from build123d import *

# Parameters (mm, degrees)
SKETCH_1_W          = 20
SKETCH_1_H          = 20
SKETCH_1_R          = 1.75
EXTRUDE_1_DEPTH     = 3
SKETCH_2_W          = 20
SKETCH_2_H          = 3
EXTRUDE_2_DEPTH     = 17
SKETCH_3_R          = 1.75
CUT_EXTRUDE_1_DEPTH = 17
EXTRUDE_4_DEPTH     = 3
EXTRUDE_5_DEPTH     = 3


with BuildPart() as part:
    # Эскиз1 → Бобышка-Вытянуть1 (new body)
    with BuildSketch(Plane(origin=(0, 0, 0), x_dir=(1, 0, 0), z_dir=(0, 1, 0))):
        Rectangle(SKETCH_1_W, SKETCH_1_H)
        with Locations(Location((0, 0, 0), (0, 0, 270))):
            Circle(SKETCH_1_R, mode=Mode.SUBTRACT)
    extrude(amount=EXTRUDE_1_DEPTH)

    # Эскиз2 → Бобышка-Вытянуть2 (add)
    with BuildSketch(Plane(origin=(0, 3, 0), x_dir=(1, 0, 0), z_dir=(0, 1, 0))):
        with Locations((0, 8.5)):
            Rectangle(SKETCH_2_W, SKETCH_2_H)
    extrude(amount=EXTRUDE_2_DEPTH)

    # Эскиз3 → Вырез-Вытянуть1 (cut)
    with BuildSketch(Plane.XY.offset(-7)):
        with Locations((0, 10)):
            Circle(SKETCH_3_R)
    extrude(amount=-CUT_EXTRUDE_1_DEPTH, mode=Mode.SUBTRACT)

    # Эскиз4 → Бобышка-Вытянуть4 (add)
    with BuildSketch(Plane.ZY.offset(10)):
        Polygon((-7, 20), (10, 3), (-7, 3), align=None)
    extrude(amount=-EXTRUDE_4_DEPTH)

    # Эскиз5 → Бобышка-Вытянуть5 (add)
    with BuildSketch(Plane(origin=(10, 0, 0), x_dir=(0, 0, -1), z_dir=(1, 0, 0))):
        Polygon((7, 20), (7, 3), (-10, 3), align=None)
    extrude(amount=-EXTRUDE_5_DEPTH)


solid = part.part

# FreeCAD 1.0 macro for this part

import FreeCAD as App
import Part
import Sketcher
from FreeCAD import Vector
Q = App.Units.Quantity


def add_polygon(sketch, points):
    """Adds a closed chain of lines whose ends are joined by coincident constraints."""
    first, n = sketch.GeometryCount, len(points)
    for a, b in zip(points, points[1:] + points[:1]):
        sketch.addGeometry(Part.LineSegment(App.Vector(*a, 0), App.Vector(*b, 0)), False)
    for i in range(n):
        sketch.addConstraint(Sketcher.Constraint("Coincident", first + i, 2, first + (i + 1) % n, 1))

doc = App.newDocument("Part")
body = doc.addObject("PartDesign::Body", "Body")

# Sketch on XZ plane
sketch1 = body.newObject("Sketcher::SketchObject", "Sketch")
sketch1.AttachmentSupport = (doc.getObject("XZ_Plane"), [""])
sketch1.MapMode = "FlatFace"
add_polygon(sketch1, [(-10, -10), (-10, 10), (10, 10), (10, -10)])  # lines 0-3
sketch1.addGeometry(Part.Circle(Vector(0, 0, 0), Vector(0, 0, 1), 1.8), False)  # 4
sketch1.addConstraint(Sketcher.Constraint("Vertical", 0))
sketch1.addConstraint(Sketcher.Constraint("Horizontal", 1))
sketch1.addConstraint(Sketcher.Constraint("Vertical", 2))
sketch1.addConstraint(Sketcher.Constraint("Horizontal", 3))
sketch1.addConstraint(Sketcher.Constraint("Coincident", 4, 3, -1, 1))
sketch1.addConstraint(Sketcher.Constraint("Symmetric", 0, 2, 2, 2, -1, 1))
sketch1.addConstraint(Sketcher.Constraint("Equal", 3, 0))
sketch1.addConstraint(Sketcher.Constraint("Diameter", 4, Q("3.5 mm")))
sketch1.addConstraint(Sketcher.Constraint("DistanceX", 1, 1, 1, 2, Q("20 mm")))
pad1 = body.newObject("PartDesign::Pad", "Pad")
pad1.Profile = sketch1
pad1.Length = 3
pad1.Reversed = True

# Sketch on XZ plane
sketch2 = body.newObject("Sketcher::SketchObject", "Sketch001")
sketch2.AttachmentSupport = (doc.getObject("XZ_Plane"), [""])
sketch2.MapMode = "FlatFace"
sketch2.AttachmentOffset = App.Placement(Vector(0, 0, -3), App.Rotation())
add_polygon(sketch2, [(-10, -10), (-10, -7), (10, -7), (10, -10)])  # lines 0-3
sketch2.addConstraint(Sketcher.Constraint("Vertical", 0))
sketch2.addConstraint(Sketcher.Constraint("Horizontal", 1))
sketch2.addConstraint(Sketcher.Constraint("Vertical", 2))
sketch2.addConstraint(Sketcher.Constraint("Horizontal", 3))
sketch2.addConstraint(Sketcher.Constraint("DistanceX", 1, 1, 1, 2, Q("20 mm")))
sketch2.addConstraint(Sketcher.Constraint("DistanceY", 0, 1, 0, 2, Q("3 mm")))
sketch2.addConstraint(Sketcher.Constraint("DistanceX", 0, 2, -1, 1, Q("10 mm")))
sketch2.addConstraint(Sketcher.Constraint("DistanceY", 0, 2, -1, 1, Q("7 mm")))
pad2 = body.newObject("PartDesign::Pad", "Pad001")
pad2.Profile = sketch2
pad2.Length = 17
pad2.Reversed = True

# Sketch on XY plane
sketch3 = body.newObject("Sketcher::SketchObject", "Sketch002")
sketch3.AttachmentSupport = (doc.getObject("XY_Plane"), [""])
sketch3.MapMode = "FlatFace"
sketch3.AttachmentOffset = App.Placement(Vector(0, 0, -7), App.Rotation())
sketch3.addGeometry(Part.Circle(Vector(0, 10, 0), Vector(0, 0, 1), 1.8), False)
sketch3.addConstraint(Sketcher.Constraint("PointOnObject", 0, 3, -2))
sketch3.addConstraint(Sketcher.Constraint("Diameter", 0, Q("3.5 mm")))
sketch3.addConstraint(Sketcher.Constraint("DistanceY", -1, 1, 0, 3, Q("10 mm")))
pocket1 = body.newObject("PartDesign::Pocket", "Pocket")
pocket1.Profile = sketch3
pocket1.Length = 17

# Sketch on YZ plane
sketch4 = body.newObject("Sketcher::SketchObject", "Sketch003")
sketch4.AttachmentSupport = (doc.getObject("YZ_Plane"), [""])
sketch4.MapMode = "FlatFace"
sketch4.AttachmentOffset = App.Placement(Vector(0, 0, -10), App.Rotation())
add_polygon(sketch4, [(3, 10), (20, -7), (3, -7)])  # lines 0-2
sketch4.addConstraint(Sketcher.Constraint("Horizontal", 1))
sketch4.addConstraint(Sketcher.Constraint("Vertical", 2))
sketch4.addConstraint(Sketcher.Constraint("Equal", 1, 2))
sketch4.addConstraint(Sketcher.Constraint("DistanceX", 1, 2, 1, 1, Q("17 mm")))
sketch4.addConstraint(Sketcher.Constraint("DistanceX", -1, 1, 0, 2, Q("20 mm")))
sketch4.addConstraint(Sketcher.Constraint("DistanceY", 0, 2, -1, 1, Q("7 mm")))
pad3 = body.newObject("PartDesign::Pad", "Pad002")
pad3.Profile = sketch4
pad3.Length = 3

# Sketch on YZ plane
sketch5 = body.newObject("Sketcher::SketchObject", "Sketch004")
sketch5.AttachmentSupport = (doc.getObject("YZ_Plane"), [""])
sketch5.MapMode = "FlatFace"
sketch5.AttachmentOffset = App.Placement(Vector(0, 0, 10), App.Rotation())
add_polygon(sketch5, [(3, -7), (20, -7), (3, 10)])  # lines 0-2
sketch5.addConstraint(Sketcher.Constraint("Horizontal", 0))
sketch5.addConstraint(Sketcher.Constraint("Vertical", 2))
sketch5.addConstraint(Sketcher.Constraint("Equal", 0, 2))
sketch5.addConstraint(Sketcher.Constraint("DistanceX", 0, 1, 0, 2, Q("17 mm")))
sketch5.addConstraint(Sketcher.Constraint("DistanceX", -1, 1, 0, 2, Q("20 mm")))
sketch5.addConstraint(Sketcher.Constraint("DistanceY", 0, 2, -1, 1, Q("7 mm")))
pad4 = body.newObject("PartDesign::Pad", "Pad003")
pad4.Profile = sketch5
pad4.Length = 3
pad4.Reversed = True

doc.recompute()
